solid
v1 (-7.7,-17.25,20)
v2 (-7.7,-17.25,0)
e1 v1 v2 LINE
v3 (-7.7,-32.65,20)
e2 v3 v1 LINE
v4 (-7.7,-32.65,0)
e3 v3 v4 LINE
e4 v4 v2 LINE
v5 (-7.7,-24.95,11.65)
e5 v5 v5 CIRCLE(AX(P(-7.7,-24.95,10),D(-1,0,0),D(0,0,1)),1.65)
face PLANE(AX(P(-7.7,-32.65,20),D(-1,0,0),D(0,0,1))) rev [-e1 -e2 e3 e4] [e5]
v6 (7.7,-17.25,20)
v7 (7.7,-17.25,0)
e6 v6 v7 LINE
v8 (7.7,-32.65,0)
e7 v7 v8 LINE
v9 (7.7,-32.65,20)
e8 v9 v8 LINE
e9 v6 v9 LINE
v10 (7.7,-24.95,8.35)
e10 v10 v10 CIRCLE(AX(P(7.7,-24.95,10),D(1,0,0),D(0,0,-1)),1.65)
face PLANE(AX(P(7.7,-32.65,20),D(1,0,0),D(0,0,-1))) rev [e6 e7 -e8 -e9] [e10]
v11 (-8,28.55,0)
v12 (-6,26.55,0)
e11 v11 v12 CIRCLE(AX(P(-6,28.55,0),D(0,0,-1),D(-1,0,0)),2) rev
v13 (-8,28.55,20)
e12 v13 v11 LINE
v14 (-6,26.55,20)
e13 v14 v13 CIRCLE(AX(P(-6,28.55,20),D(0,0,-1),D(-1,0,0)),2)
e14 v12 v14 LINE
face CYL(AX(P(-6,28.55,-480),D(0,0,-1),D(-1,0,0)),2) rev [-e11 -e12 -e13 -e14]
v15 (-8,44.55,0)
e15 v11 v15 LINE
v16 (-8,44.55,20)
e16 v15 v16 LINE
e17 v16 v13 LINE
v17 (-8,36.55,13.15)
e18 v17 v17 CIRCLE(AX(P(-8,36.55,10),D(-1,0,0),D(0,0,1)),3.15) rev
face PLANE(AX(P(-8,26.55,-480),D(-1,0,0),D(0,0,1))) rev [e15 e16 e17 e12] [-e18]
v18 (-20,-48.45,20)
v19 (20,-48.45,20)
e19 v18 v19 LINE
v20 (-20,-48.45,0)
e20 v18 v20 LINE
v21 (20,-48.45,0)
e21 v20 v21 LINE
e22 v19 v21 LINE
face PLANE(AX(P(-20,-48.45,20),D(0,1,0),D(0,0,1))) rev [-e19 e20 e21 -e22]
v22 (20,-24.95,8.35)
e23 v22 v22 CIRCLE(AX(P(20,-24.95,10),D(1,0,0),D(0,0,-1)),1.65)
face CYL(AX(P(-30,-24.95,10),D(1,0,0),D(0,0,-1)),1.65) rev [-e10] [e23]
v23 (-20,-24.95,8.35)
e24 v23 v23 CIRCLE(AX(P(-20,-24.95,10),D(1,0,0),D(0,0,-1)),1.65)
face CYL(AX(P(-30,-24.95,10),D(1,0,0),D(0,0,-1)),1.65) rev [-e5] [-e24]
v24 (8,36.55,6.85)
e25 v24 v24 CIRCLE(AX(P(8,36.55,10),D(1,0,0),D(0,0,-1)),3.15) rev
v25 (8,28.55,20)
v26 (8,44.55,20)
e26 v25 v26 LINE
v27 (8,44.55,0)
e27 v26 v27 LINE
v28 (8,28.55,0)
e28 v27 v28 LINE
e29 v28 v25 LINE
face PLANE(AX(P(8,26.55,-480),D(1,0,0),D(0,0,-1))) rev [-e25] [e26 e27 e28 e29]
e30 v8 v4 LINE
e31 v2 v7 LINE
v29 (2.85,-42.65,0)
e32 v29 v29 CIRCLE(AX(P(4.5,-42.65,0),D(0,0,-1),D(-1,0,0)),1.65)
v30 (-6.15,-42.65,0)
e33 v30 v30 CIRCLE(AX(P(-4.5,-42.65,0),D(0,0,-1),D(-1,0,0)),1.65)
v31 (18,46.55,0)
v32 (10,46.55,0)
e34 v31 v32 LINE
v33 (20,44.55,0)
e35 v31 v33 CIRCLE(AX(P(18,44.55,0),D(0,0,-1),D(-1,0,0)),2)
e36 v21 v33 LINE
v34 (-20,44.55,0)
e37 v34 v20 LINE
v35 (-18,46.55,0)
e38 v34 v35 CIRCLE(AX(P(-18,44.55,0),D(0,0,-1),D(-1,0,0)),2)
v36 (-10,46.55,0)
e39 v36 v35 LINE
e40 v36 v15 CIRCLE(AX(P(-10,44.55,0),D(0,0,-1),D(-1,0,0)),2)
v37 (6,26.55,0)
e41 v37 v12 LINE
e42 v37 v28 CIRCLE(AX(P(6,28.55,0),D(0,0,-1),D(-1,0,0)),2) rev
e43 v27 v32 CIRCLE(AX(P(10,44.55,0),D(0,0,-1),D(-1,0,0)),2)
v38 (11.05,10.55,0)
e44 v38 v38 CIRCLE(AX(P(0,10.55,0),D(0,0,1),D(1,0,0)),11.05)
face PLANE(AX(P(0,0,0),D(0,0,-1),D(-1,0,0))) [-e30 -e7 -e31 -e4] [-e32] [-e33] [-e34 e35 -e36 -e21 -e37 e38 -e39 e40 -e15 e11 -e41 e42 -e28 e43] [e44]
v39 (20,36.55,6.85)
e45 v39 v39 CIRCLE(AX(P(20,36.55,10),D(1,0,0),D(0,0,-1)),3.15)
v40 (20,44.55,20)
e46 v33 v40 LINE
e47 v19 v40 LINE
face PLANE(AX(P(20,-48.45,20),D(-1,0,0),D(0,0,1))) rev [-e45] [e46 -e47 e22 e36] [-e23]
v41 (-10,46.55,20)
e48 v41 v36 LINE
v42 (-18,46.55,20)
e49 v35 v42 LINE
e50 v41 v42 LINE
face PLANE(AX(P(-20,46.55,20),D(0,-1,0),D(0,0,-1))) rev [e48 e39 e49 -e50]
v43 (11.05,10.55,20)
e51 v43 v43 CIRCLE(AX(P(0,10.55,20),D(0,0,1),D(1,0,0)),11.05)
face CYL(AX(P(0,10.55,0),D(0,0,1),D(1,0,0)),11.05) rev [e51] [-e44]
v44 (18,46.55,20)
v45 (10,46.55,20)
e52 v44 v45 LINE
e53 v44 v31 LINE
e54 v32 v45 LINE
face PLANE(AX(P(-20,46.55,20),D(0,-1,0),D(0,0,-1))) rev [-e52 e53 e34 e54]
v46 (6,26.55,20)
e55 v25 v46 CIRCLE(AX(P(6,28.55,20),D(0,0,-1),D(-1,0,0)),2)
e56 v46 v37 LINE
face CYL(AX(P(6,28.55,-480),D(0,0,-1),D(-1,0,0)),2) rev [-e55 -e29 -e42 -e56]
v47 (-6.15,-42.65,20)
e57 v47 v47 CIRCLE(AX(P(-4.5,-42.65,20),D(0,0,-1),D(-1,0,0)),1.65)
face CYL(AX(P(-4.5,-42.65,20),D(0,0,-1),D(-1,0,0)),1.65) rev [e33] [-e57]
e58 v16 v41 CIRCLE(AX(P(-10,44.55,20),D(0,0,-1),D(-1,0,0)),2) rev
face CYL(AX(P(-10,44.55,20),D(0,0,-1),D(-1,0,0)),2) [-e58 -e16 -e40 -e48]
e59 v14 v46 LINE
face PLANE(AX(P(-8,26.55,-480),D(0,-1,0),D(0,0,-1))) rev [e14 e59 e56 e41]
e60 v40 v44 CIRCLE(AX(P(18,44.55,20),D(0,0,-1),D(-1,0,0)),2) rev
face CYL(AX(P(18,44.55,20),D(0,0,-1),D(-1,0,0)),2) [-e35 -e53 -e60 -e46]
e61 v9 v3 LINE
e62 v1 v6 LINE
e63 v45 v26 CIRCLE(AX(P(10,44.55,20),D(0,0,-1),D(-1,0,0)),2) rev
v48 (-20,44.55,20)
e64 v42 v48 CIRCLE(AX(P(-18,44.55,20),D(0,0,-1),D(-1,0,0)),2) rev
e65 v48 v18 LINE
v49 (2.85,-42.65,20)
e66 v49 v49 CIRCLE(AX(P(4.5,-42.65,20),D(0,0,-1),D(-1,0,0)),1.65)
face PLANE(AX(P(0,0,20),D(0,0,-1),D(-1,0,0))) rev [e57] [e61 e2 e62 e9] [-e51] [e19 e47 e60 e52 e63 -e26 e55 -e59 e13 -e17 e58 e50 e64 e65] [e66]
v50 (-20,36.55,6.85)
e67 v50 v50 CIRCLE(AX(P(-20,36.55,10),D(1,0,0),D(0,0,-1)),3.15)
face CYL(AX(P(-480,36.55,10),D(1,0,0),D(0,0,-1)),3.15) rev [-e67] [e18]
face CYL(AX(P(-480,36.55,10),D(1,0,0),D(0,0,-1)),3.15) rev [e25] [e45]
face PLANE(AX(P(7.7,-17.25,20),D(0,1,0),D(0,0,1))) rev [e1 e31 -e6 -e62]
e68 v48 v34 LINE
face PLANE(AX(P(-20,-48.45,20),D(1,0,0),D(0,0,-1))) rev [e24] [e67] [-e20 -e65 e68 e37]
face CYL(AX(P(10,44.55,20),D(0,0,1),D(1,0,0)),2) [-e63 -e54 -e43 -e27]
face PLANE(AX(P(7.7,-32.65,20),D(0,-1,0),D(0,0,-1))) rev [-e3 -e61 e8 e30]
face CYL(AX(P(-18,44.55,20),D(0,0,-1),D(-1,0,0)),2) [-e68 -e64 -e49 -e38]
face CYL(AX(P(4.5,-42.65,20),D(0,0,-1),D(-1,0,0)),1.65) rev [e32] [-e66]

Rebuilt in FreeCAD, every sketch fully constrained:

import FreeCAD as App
import Part
import Sketcher
Q = App.Units.Quantity


def edges_at(feature, points):
    """Names of the edges that pass closest to the given points."""
    edges = feature.Shape.Edges
    near = lambda p: min(range(len(edges)), key=lambda i: edges[i].distToShape(Part.Vertex(*p))[0])
    return sorted({f"Edge{near(p) + 1}" for p in points})


def add_polygon(sketch, points):
    """Adds a closed chain of lines whose ends are joined by coincident constraints."""
    first, n = sketch.GeometryCount, len(points)
    for a, b in zip(points, points[1:] + points[:1]):
        sketch.addGeometry(Part.LineSegment(App.Vector(*a, 0), App.Vector(*b, 0)), False)
    for i in range(n):
        sketch.addConstraint(Sketcher.Constraint("Coincident", first + i, 2, first + (i + 1) % n, 1))

doc = App.newDocument("Part")
body = doc.addObject("PartDesign::Body", "Body")

# Sketch on XY plane
sketch1 = body.newObject("Sketcher::SketchObject", "Sketch")
sketch1.AttachmentSupport = (doc.getObject("XY_Plane"), [""])
sketch1.MapMode = "FlatFace"
add_polygon(sketch1, [(-20, 47), (-20, -48), (20, -48), (20, 47)])  # lines 0-3
sketch1.addConstraint(Sketcher.Constraint("Vertical", 0))
sketch1.addConstraint(Sketcher.Constraint("Horizontal", 1))
sketch1.addConstraint(Sketcher.Constraint("Vertical", 2))
sketch1.addConstraint(Sketcher.Constraint("Horizontal", 3))
sketch1.addConstraint(Sketcher.Constraint("DistanceX", 1, 1, 1, 2, Q("40 mm")))
sketch1.addConstraint(Sketcher.Constraint("DistanceY", 0, 2, 0, 1, Q("95 mm")))
sketch1.addConstraint(Sketcher.Constraint("DistanceX", 0, 2, -1, 1, Q("20 mm")))
sketch1.addConstraint(Sketcher.Constraint("DistanceY", 0, 2, -1, 1, Q("48.45 mm")))
pad1 = body.newObject("PartDesign::Pad", "Pad")
pad1.Profile = sketch1
pad1.Length = 20

# Sketch on YZ plane
sketch2 = body.newObject("Sketcher::SketchObject", "Sketch001")
sketch2.AttachmentSupport = (doc.getObject("YZ_Plane"), [""])
sketch2.MapMode = "FlatFace"
sketch2.AttachmentOffset = App.Placement(App.Vector(0, 0, 20), App.Rotation())
sketch2.addGeometry(Part.Circle(App.Vector(36.5, 10, 0), App.Vector(0, 0, 1), 3.1), False)
sketch2.addConstraint(Sketcher.Constraint("Diameter", 0, Q("6.3 mm")))
sketch2.addConstraint(Sketcher.Constraint("DistanceY", -1, 1, 0, 3, Q("10 mm")))
sketch2.addConstraint(Sketcher.Constraint("DistanceX", -1, 1, 0, 3, Q("36.55 mm")))
pocket1 = body.newObject("PartDesign::Pocket", "Pocket")
pocket1.Profile = sketch2
pocket1.Length = 500

# Sketch on XY plane
sketch3 = body.newObject("Sketcher::SketchObject", "Sketch002")
sketch3.AttachmentSupport = (doc.getObject("XY_Plane"), [""])
sketch3.MapMode = "FlatFace"
sketch3.AttachmentOffset = App.Placement(App.Vector(0, 0, 20), App.Rotation())
add_polygon(sketch3, [(-8, 51), (-8, 27), (8, 27), (8, 51)])  # lines 0-3
sketch3.addConstraint(Sketcher.Constraint("Vertical", 0))
sketch3.addConstraint(Sketcher.Constraint("Horizontal", 1))
sketch3.addConstraint(Sketcher.Constraint("Vertical", 2))
sketch3.addConstraint(Sketcher.Constraint("Horizontal", 3))
sketch3.addConstraint(Sketcher.Constraint("DistanceX", 1, 1, 1, 2, Q("16 mm")))
sketch3.addConstraint(Sketcher.Constraint("DistanceX", 0, 2, -1, 1, Q("8 mm")))
sketch3.addConstraint(Sketcher.Constraint("DistanceY", -1, 1, 0, 2, Q("26.55 mm")))
sketch3.addConstraint(Sketcher.Constraint("DistanceY", 0, 2, 0, 1, Q("24.32876 mm")))
pocket2 = body.newObject("PartDesign::Pocket", "Pocket001")
pocket2.Profile = sketch3
pocket2.Length = 500

# Sketch on XY plane
sketch4 = body.newObject("Sketcher::SketchObject", "Sketch003")
sketch4.AttachmentSupport = (doc.getObject("XY_Plane"), [""])
sketch4.MapMode = "FlatFace"
sketch4.AttachmentOffset = App.Placement(App.Vector(0, 0, 20), App.Rotation())
sketch4.addGeometry(Part.Circle(App.Vector(0, 11, 0), App.Vector(0, 0, 1), 11), False)
sketch4.addConstraint(Sketcher.Constraint("PointOnObject", 0, 3, -2))
sketch4.addConstraint(Sketcher.Constraint("Diameter", 0, Q("22.1 mm")))
sketch4.addConstraint(Sketcher.Constraint("DistanceY", -1, 1, 0, 3, Q("10.55 mm")))
pocket3 = body.newObject("PartDesign::Pocket", "Pocket002")
pocket3.Profile = sketch4
pocket3.Length = 20

# Sketch on XY plane
sketch5 = body.newObject("Sketcher::SketchObject", "Sketch004")
sketch5.AttachmentSupport = (doc.getObject("XY_Plane"), [""])
sketch5.MapMode = "FlatFace"
add_polygon(sketch5, [(8, -17), (8, -33), (-8, -33), (-8, -17)])  # lines 0-3
sketch5.addConstraint(Sketcher.Constraint("Vertical", 0))
sketch5.addConstraint(Sketcher.Constraint("Horizontal", 1))
sketch5.addConstraint(Sketcher.Constraint("Vertical", 2))
sketch5.addConstraint(Sketcher.Constraint("Horizontal", 3))
sketch5.addConstraint(Sketcher.Constraint("Equal", 3, 0))
sketch5.addConstraint(Sketcher.Constraint("DistanceX", 1, 2, 1, 1, Q("15.4 mm")))
sketch5.addConstraint(Sketcher.Constraint("DistanceX", -1, 1, 0, 2, Q("7.7 mm")))
sketch5.addConstraint(Sketcher.Constraint("DistanceY", 0, 2, -1, 1, Q("32.65 mm")))
pocket4 = body.newObject("PartDesign::Pocket", "Pocket003")
pocket4.Profile = sketch5
pocket4.Length = 20
pocket4.Reversed = True

# Sketch on XY plane
sketch6 = body.newObject("Sketcher::SketchObject", "Sketch005")
sketch6.AttachmentSupport = (doc.getObject("XY_Plane"), [""])
sketch6.MapMode = "FlatFace"
sketch6.addGeometry(Part.Circle(App.Vector(-4.5, -42.6, 0), App.Vector(0, 0, 1), 1.6), False)
sketch6.addGeometry(Part.Circle(App.Vector(4.5, -42.6, 0), App.Vector(0, 0, 1), 1.6), False)
sketch6.addConstraint(Sketcher.Constraint("Equal", 0, 1))
sketch6.addConstraint(Sketcher.Constraint("Symmetric", 0, 3, 1, 3, -2))
sketch6.addConstraint(Sketcher.Constraint("Diameter", 0, Q("3.3 mm")))
sketch6.addConstraint(Sketcher.Constraint("DistanceX", 0, 3, 1, 3, Q("9 mm")))
sketch6.addConstraint(Sketcher.Constraint("DistanceY", 0, 3, -1, 1, Q("42.65 mm")))
pocket5 = body.newObject("PartDesign::Pocket", "Pocket004")
pocket5.Profile = sketch6
pocket5.Length = 20
pocket5.Reversed = True

# Sketch on YZ plane
sketch7 = body.newObject("Sketcher::SketchObject", "Sketch006")
sketch7.AttachmentSupport = (doc.getObject("YZ_Plane"), [""])
sketch7.MapMode = "FlatFace"
sketch7.AttachmentOffset = App.Placement(App.Vector(0, 0, 20), App.Rotation())
sketch7.addGeometry(Part.Circle(App.Vector(-24.9, 10, 0), App.Vector(0, 0, 1), 1.6), False)
sketch7.addConstraint(Sketcher.Constraint("Diameter", 0, Q("3.3 mm")))
sketch7.addConstraint(Sketcher.Constraint("DistanceY", -1, 1, 0, 3, Q("10 mm")))
sketch7.addConstraint(Sketcher.Constraint("DistanceX", 0, 3, -1, 1, Q("24.95 mm")))
pocket6 = body.newObject("PartDesign::Pocket", "Pocket005")
pocket6.Profile = sketch7
pocket6.Length = 50
doc.recompute()

fillet = body.newObject("PartDesign::Fillet", "Fillet")
fillet.Base = (pocket6, edges_at(pocket6, [
    (8, 46.55, 10),
    (-8, 46.55, 10),
    (-8, 26.55, 10),
    (8, 26.55, 10),
    (-20, 46.55, 10),
    (20, 46.55, 10),
]))
fillet.Radius = 2

doc.recompute()
